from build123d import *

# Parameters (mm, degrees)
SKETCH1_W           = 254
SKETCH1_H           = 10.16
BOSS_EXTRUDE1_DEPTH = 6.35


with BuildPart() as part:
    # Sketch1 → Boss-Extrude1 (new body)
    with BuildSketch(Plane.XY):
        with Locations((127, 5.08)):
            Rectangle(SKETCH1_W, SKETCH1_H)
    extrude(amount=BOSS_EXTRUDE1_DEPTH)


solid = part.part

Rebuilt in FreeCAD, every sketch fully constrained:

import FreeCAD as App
import Part
import Sketcher
from FreeCAD import Vector
Q = App.Units.Quantity

doc = App.newDocument("Part")
body = doc.addObject("PartDesign::Body", "Body")

# Sketch on XY plane
sketch1 = body.newObject("Sketcher::SketchObject", "Sketch")
sketch1.AttachmentSupport = (doc.getObject("XY_Plane"), [""])
sketch1.MapMode = "FlatFace"
sketch1.addGeometry(Part.LineSegment(Vector(0, 10, 0), Vector(0, 0, 0)), False)
sketch1.addGeometry(Part.LineSegment(Vector(0, 0, 0), Vector(254, 0, 0)), False)
sketch1.addGeometry(Part.LineSegment(Vector(254, 0, 0), Vector(254, 10, 0)), False)
sketch1.addGeometry(Part.LineSegment(Vector(254, 10, 0), Vector(0, 10, 0)), False)
sketch1.addConstraint(Sketcher.Constraint("Coincident", 0, 2, 1, 1))
sketch1.addConstraint(Sketcher.Constraint("Coincident", 1, 2, 2, 1))
sketch1.addConstraint(Sketcher.Constraint("Coincident", 2, 2, 3, 1))
sketch1.addConstraint(Sketcher.Constraint("Coincident", 3, 2, 0, 1))
sketch1.addConstraint(Sketcher.Constraint("Vertical", 0))
sketch1.addConstraint(Sketcher.Constraint("Horizontal", 1))
sketch1.addConstraint(Sketcher.Constraint("Vertical", 2))
sketch1.addConstraint(Sketcher.Constraint("Horizontal", 3))
sketch1.addConstraint(Sketcher.Constraint("Coincident", 0, 2, -1, 1))
sketch1.addConstraint(Sketcher.Constraint("DistanceX", 1, 1, 1, 2, Q("10 in")))
sketch1.addConstraint(Sketcher.Constraint("DistanceY", 0, 2, 0, 1, Q("0.4 in")))
pad1 = body.newObject("PartDesign::Pad", "Pad")
pad1.Profile = sketch1
pad1.Length = Q("0.25 in")

doc.recompute()
